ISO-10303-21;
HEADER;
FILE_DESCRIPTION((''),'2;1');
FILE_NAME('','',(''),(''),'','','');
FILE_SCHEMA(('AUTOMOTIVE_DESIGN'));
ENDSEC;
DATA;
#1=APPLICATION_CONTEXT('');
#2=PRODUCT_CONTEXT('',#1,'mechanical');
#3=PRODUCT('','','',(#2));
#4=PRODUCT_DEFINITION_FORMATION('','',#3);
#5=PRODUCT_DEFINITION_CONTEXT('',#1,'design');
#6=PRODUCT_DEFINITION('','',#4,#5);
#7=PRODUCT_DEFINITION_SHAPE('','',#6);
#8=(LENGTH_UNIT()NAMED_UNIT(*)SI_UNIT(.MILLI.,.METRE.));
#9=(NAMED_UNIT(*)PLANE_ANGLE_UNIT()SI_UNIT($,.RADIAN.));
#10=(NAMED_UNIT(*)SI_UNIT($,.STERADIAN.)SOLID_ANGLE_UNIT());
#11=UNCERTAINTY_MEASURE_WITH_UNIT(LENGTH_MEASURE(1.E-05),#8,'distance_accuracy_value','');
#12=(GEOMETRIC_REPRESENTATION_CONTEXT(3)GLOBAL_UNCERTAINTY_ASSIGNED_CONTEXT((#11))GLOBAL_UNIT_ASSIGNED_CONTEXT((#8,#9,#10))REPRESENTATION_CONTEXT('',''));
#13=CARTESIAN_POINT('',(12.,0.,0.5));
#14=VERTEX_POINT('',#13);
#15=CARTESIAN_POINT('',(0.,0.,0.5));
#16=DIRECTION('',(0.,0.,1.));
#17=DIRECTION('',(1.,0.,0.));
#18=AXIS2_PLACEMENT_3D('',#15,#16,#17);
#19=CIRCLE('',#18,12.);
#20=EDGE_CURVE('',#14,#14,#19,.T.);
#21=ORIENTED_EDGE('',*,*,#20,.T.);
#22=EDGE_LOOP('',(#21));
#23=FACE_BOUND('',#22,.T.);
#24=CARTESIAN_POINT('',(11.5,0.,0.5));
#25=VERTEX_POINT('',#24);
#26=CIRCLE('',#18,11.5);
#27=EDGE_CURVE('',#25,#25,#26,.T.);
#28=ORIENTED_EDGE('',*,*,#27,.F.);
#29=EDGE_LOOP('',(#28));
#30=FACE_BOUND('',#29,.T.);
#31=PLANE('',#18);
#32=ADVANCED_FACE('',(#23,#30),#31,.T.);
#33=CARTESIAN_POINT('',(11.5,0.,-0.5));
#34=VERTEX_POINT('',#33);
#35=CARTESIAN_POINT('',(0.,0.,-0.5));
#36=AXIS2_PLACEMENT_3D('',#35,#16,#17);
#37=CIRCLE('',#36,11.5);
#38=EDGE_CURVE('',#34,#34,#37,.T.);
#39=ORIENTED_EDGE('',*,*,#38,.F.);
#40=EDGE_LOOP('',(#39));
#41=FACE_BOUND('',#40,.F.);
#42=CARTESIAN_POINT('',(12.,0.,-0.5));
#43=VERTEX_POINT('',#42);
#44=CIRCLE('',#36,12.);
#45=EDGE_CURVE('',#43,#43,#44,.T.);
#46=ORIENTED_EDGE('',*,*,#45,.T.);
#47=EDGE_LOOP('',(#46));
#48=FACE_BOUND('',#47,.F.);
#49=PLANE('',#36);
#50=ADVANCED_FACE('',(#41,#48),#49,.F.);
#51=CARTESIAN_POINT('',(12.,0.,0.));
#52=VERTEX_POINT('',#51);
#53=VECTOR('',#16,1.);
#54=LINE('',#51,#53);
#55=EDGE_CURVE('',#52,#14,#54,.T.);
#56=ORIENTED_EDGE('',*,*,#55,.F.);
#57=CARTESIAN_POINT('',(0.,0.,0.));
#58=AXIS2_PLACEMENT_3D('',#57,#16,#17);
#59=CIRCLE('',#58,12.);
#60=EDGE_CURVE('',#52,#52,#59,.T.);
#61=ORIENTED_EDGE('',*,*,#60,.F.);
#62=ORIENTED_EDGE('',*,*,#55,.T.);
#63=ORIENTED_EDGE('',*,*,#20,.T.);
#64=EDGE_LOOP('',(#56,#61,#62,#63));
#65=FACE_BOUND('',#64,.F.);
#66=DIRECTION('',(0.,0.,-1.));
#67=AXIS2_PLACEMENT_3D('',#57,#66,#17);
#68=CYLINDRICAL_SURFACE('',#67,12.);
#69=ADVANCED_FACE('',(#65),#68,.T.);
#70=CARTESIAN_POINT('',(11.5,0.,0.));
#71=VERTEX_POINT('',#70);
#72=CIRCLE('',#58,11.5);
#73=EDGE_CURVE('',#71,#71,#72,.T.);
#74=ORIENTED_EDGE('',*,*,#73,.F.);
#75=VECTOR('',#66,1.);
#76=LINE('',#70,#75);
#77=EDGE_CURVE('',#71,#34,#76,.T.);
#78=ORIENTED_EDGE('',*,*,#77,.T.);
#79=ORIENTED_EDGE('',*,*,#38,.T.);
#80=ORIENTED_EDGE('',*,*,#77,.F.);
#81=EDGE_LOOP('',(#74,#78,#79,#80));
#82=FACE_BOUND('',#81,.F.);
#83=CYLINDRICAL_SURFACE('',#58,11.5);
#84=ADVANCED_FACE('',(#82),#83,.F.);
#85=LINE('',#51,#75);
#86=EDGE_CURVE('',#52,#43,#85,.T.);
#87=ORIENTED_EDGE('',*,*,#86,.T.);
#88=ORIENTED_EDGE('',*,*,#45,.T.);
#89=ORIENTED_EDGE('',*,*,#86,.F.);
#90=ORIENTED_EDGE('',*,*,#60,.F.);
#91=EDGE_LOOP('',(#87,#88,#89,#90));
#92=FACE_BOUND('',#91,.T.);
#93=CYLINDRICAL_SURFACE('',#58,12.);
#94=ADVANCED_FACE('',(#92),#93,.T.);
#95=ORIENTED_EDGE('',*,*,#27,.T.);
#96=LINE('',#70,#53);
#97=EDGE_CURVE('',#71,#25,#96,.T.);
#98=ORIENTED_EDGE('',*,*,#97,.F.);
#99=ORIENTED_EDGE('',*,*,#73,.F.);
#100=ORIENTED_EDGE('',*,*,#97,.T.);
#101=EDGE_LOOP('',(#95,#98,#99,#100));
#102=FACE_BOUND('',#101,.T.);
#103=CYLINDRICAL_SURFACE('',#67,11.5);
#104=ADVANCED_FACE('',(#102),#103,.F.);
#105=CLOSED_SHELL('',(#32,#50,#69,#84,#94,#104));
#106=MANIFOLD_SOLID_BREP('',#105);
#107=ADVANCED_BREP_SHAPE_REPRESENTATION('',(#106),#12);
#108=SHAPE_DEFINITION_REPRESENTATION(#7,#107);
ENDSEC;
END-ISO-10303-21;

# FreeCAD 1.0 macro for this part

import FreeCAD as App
import Part
import Sketcher
Q = App.Units.Quantity

doc = App.newDocument("Part")
params = doc.addObject("Spreadsheet::Sheet", "Params")
for row, (alias, value) in enumerate([
    ("sketch1_diameter", "24 mm"),
    ("sketch1_diameter2", "23 mm"),
    ("pad1_length", "1 mm"),
], start=1):
    params.set(f"A{row}", alias)
    params.set(f"B{row}", "=" + value)
    params.setAlias(f"B{row}", alias)

body = doc.addObject("PartDesign::Body", "Body")

# Sketch on XY plane
sketch1 = body.newObject("Sketcher::SketchObject", "Sketch")
sketch1.AttachmentSupport = (doc.getObject("XY_Plane"), [""])
sketch1.MapMode = "FlatFace"
sketch1.addGeometry([
    Part.Circle(App.Vector(0, 0, 0), App.Vector(0, 0, 1), 12),
    Part.Circle(App.Vector(0, 0, 0), App.Vector(0, 0, 1), 12),
], False)
sketch1.addConstraint([
    Sketcher.Constraint("Coincident", 0, 3, -1, 1),
    Sketcher.Constraint("Coincident", 1, 3, -1, 1),
    Sketcher.Constraint("Diameter", 0, Q("24 mm")),
    Sketcher.Constraint("Diameter", 1, Q("23 mm")),
])
sketch1.setExpression("Constraints[2]", "Params.sketch1_diameter")
sketch1.setExpression("Constraints[3]", "Params.sketch1_diameter2")
pad1 = body.newObject("PartDesign::Pad", "Pad")
pad1.Profile = sketch1
pad1.setExpression("Length", "Params.pad1_length")
pad1.Midplane = True

doc.recompute()
